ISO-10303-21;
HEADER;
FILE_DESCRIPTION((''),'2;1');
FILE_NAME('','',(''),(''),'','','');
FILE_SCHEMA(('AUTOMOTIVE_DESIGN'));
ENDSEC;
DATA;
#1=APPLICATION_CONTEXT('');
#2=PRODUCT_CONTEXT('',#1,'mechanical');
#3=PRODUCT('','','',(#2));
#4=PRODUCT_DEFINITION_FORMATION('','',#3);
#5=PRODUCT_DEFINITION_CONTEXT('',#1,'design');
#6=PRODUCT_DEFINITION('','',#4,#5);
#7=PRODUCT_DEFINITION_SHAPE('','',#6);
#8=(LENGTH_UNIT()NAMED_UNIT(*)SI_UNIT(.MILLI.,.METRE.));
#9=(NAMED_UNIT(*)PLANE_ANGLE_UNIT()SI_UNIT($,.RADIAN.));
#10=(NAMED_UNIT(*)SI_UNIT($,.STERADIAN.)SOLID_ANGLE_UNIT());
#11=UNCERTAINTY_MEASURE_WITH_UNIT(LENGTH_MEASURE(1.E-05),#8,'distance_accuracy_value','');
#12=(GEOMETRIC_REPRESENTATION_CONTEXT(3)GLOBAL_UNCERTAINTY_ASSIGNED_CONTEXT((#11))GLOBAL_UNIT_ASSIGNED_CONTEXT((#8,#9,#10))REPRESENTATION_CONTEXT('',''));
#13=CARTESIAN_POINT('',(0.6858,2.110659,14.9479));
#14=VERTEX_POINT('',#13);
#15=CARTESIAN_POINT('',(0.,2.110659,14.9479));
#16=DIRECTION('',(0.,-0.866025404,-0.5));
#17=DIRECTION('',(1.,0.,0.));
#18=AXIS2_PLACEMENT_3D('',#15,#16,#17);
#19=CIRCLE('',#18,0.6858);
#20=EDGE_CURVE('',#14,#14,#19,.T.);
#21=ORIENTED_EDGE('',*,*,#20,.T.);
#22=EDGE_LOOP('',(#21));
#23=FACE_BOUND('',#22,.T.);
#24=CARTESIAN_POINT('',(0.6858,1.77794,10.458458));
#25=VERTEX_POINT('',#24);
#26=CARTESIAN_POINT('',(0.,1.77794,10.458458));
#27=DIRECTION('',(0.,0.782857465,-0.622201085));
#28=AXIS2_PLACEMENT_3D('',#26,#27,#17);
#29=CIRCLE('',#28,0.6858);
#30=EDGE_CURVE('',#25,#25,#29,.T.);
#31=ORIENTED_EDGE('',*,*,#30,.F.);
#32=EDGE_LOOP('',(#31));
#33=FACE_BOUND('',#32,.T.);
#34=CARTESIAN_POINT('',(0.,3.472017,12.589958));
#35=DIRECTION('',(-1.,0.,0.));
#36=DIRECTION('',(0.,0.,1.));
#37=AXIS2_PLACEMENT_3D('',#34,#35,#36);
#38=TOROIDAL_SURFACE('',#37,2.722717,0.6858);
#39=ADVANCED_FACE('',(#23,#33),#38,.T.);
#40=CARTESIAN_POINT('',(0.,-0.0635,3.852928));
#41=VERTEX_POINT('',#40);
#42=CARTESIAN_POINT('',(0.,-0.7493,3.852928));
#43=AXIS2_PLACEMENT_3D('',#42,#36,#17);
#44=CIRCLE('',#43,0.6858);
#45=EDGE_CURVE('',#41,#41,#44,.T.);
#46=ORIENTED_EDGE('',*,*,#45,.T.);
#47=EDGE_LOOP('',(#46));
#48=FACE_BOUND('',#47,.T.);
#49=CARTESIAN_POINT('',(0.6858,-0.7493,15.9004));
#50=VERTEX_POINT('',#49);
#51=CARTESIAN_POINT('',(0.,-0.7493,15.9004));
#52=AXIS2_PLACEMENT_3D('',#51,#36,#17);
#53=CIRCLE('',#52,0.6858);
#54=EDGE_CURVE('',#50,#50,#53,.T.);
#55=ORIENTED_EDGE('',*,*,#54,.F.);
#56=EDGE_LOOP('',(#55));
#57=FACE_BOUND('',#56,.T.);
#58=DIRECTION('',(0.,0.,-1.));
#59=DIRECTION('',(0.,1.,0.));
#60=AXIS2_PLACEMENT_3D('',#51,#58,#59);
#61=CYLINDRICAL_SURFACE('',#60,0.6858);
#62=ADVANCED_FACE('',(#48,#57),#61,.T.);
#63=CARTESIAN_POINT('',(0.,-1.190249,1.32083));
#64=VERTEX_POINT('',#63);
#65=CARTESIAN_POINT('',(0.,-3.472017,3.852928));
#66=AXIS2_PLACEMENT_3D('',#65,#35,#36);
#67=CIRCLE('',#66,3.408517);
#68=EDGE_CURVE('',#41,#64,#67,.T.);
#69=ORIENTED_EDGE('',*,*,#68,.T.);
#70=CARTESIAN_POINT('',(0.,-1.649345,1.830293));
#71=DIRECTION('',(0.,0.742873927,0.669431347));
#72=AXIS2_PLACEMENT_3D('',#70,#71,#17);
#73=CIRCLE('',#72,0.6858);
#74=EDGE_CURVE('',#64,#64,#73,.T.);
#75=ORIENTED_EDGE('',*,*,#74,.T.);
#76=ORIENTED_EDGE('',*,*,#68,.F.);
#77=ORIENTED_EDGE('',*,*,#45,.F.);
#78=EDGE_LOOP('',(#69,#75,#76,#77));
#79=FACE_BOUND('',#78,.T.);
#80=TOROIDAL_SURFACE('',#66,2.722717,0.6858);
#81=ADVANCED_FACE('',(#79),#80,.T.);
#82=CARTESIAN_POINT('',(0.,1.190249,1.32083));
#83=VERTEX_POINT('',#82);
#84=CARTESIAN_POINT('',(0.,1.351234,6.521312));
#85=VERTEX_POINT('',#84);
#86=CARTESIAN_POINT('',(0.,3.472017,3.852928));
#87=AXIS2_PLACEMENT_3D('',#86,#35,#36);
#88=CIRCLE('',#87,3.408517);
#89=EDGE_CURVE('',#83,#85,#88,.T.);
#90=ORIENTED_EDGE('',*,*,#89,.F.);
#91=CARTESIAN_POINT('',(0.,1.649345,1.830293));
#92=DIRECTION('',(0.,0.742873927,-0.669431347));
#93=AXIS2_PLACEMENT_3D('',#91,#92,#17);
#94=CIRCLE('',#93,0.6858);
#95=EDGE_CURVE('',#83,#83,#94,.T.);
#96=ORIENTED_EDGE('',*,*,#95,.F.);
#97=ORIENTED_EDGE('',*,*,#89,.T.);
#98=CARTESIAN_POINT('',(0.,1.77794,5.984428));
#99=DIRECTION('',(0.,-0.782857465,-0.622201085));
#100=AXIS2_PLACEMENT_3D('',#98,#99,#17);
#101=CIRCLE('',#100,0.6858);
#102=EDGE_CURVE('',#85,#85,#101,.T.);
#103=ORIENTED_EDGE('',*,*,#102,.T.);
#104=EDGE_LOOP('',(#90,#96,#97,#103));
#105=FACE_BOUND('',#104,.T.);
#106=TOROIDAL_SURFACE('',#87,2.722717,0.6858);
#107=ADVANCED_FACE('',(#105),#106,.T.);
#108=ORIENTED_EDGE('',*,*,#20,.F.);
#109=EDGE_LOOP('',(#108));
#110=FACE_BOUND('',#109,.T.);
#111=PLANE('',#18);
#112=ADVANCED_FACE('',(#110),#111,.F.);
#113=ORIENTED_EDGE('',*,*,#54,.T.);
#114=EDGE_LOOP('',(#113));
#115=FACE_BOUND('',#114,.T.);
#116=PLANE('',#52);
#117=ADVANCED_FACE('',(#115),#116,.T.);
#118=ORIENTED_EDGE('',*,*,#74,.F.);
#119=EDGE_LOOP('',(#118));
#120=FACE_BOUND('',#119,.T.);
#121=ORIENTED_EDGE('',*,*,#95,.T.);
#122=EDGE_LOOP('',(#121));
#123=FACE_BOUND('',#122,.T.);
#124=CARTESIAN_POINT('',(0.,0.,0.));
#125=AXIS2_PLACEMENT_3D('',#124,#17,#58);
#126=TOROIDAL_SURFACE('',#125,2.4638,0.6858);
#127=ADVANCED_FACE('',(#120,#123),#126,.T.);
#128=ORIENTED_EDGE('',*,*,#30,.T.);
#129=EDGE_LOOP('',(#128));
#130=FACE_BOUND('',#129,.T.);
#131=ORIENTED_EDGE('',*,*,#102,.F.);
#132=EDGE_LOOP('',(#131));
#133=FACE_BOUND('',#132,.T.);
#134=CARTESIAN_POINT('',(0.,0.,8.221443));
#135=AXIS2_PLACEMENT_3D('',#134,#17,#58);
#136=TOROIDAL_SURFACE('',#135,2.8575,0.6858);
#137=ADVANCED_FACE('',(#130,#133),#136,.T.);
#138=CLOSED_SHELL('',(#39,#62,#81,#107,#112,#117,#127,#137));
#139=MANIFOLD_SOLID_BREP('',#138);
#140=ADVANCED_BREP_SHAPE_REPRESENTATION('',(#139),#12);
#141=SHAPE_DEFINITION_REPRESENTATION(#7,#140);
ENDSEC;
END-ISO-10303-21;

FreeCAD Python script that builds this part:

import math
import FreeCAD as App
import Part
import Sketcher
Q = App.Units.Quantity

doc = App.newDocument("Part")
body = doc.addObject("PartDesign::Body", "Body")

# Sketch on XY plane
sketch1 = body.newObject("Sketcher::SketchObject", "Sketch")
sketch1.AttachmentSupport = (doc.getObject("XY_Plane"), [""])
sketch1.MapMode = "FlatFace"
sketch1.AttachmentOffset = App.Placement(App.Vector(0, 0, 0.626 * 25.4), App.Rotation())
sketch1.addGeometry(Part.Circle(App.Vector(0, -0.7, 0), App.Vector(0, 0, 1), 0.7), False)
sketch1.addConstraint(Sketcher.Constraint("PointOnObject", 0, 3, -2))
sketch1.addConstraint(Sketcher.Constraint("Diameter", 0, Q("0.054 in")))
sketch1.addConstraint(Sketcher.Constraint("DistanceY", 0, 3, -1, 1, Q("0.0295 in")))

# Sketch on YZ plane
sketch2 = body.newObject("Sketcher::SketchObject", "Sketch001")
sketch2.AttachmentSupport = (doc.getObject("YZ_Plane"), [""])
sketch2.MapMode = "FlatFace"
sketch2.addGeometry(Part.LineSegment(App.Vector(-0.7, 15.9, 0), App.Vector(-0.7, 3.9, 0)), False)
sketch2.addGeometry(Part.ArcOfCircle(Part.Circle(App.Vector(-3.5, 3.9, 0), App.Vector(0, 0, 1), 2.7), math.radians(-48), math.radians(0)), False)
sketch2.addGeometry(Part.ArcOfCircle(Part.Circle(App.Vector(0, 0, 0), App.Vector(0, 0, 1), 2.5), math.radians(132), math.radians(408)), False)
sketch2.addGeometry(Part.ArcOfCircle(Part.Circle(App.Vector(3.5, 3.9, 0), App.Vector(0, 0, 1), 2.7), math.radians(128), math.radians(228)), False)
sketch2.addGeometry(Part.ArcOfCircle(Part.Circle(App.Vector(0, 8.2, 0), App.Vector(0, 0, 1), 2.9), math.radians(-52), math.radians(52)), False)
sketch2.addGeometry(Part.ArcOfCircle(Part.Circle(App.Vector(3.5, 12.6, 0), App.Vector(0, 0, 1), 2.7), math.radians(120), math.radians(232)), False)
sketch2.addConstraint(Sketcher.Constraint("Tangent", 0, 2, 1, 2))
sketch2.addConstraint(Sketcher.Constraint("Tangent", 1, 1, 2, 1))
sketch2.addConstraint(Sketcher.Constraint("Tangent", 2, 2, 3, 2))
sketch2.addConstraint(Sketcher.Constraint("Tangent", 3, 1, 4, 1))
sketch2.addConstraint(Sketcher.Constraint("Tangent", 4, 2, 5, 2))
sketch2.addConstraint(Sketcher.Constraint("Vertical", 0))
sketch2.addConstraint(Sketcher.Constraint("Coincident", 2, 3, -1, 1))
sketch2.addConstraint(Sketcher.Constraint("Equal", 1, 3))
sketch2.addConstraint(Sketcher.Constraint("Equal", 3, 5))
sketch2.addConstraint(Sketcher.Constraint("PointOnObject", 4, 3, -2))
sketch2.addConstraint(Sketcher.Constraint("Horizontal", 1, 3, 3, 3))
sketch2.addConstraint(Sketcher.Constraint("Vertical", 3, 3, 5, 3))
sketch2.addConstraint(Sketcher.Constraint("Radius", 2, Q("0.097 in")))
sketch2.addConstraint(Sketcher.Constraint("Radius", 4, Q("0.1125 in")))
sketch2.addConstraint(Sketcher.Constraint("DistanceY", -1, 1, 0, 1, Q("0.626 in")))
sketch2.addConstraint(Sketcher.Constraint("DistanceX", 0, 1, -1, 1, Q("0.0295 in")))
sketch2.addConstraint(Sketcher.Constraint("DistanceY", -1, 1, 5, 1, Q("0.5885 in")))
sketch2.addConstraint(Sketcher.Constraint("Radius", 1, Q("2.722717 mm")))
doc.recompute()

additivepipe = body.newObject("PartDesign::AdditivePipe", "AdditivePipe")
additivepipe.Profile = sketch1
additivepipe.Spine = (sketch2, ["Edge1", "Edge2", "Edge3", "Edge4", "Edge5", "Edge6"])

doc.recompute()
